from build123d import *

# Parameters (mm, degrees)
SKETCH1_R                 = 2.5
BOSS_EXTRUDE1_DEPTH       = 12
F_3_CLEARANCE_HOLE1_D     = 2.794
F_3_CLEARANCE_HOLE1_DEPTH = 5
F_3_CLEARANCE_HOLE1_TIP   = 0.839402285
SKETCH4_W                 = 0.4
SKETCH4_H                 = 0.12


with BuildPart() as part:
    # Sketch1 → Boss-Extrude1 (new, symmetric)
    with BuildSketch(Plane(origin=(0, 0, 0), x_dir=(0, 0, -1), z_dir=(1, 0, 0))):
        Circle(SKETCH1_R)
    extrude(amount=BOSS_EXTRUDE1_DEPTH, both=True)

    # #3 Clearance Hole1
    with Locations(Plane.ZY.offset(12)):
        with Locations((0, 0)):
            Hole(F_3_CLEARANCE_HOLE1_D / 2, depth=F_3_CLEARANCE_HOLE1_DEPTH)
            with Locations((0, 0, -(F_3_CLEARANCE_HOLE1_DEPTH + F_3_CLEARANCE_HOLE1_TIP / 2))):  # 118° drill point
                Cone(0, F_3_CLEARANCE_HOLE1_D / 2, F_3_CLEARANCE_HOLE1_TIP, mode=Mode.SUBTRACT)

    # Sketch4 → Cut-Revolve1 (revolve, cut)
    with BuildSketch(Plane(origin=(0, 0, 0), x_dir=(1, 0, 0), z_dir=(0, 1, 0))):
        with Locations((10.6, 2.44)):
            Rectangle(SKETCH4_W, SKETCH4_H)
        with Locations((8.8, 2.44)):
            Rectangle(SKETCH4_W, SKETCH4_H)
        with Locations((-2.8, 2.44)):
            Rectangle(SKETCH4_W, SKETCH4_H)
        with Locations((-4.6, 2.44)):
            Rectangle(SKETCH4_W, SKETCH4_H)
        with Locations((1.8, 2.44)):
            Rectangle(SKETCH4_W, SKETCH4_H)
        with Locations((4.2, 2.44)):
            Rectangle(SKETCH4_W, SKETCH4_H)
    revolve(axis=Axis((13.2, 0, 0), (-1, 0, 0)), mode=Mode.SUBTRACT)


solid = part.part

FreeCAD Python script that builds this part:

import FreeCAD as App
import Part
import Sketcher
Q = App.Units.Quantity

doc = App.newDocument("Part")
body = doc.addObject("PartDesign::Body", "Body")

sketch1 = body.newObject("Sketcher::SketchObject", "Sketch")
sketch1.AttachmentSupport = (doc.getObject("YZ_Plane"), [""])
sketch1.MapMode = "FlatFace"
sketch1.addGeometry(Part.Circle(App.Vector(0, 0, 0), App.Vector(0, 0, 1), 2.5), False)
sketch1.addConstraint([
    Sketcher.Constraint("Coincident", 0, 3, -1, 1),
    Sketcher.Constraint("Diameter", 0, Q("5 mm")),
])
pad1 = body.newObject("PartDesign::Pad", "Pad")
pad1.Profile = sketch1
pad1.Length = 24
pad1.Midplane = True

sketch2 = body.newObject("Sketcher::SketchObject", "Sketch001")
sketch2.AttachmentSupport = (doc.getObject("YZ_Plane"), [""])
sketch2.MapMode = "FlatFace"
sketch2.AttachmentOffset = App.Placement(App.Vector(0, 0, -12), App.Rotation())
sketch2.addGeometry(Part.Circle(App.Vector(0, 0, 0), App.Vector(0, 0, 1), 1.4), False)
sketch2.addConstraint([
    Sketcher.Constraint("Coincident", 0, 3, -1, 1),
    Sketcher.Constraint("Diameter", 0, Q("2.794 mm")),
])
doc.recompute()
hole = body.newObject("PartDesign::Hole", "Hole")
hole.Profile = sketch2
hole.ThreadType = "None"
hole.Diameter = 2.794
hole.DepthType = "Dimension"
hole.Depth = 5
hole.DrillPoint = "Angled"
hole.DrillPointAngle = 118
hole.Reversed = True

sketch3 = body.newObject("Sketcher::SketchObject", "Sketch002")
sketch3.AttachmentSupport = (doc.getObject("XZ_Plane"), [""])
sketch3.MapMode = "FlatFace"
sketch3.addGeometry([
    Part.LineSegment(App.Vector(10.4, -2.5, 0), App.Vector(10.4, -2.38, 0)),
    Part.LineSegment(App.Vector(10.4, -2.38, 0), App.Vector(10.8, -2.38, 0)),
    Part.LineSegment(App.Vector(10.8, -2.38, 0), App.Vector(10.8, -2.5, 0)),
    Part.LineSegment(App.Vector(10.8, -2.5, 0), App.Vector(10.4, -2.5, 0)),
    Part.LineSegment(App.Vector(8.6, -2.5, 0), App.Vector(8.6, -2.38, 0)),
    Part.LineSegment(App.Vector(8.6, -2.38, 0), App.Vector(9, -2.38, 0)),
    Part.LineSegment(App.Vector(9, -2.38, 0), App.Vector(9, -2.5, 0)),
    Part.LineSegment(App.Vector(9, -2.5, 0), App.Vector(8.6, -2.5, 0)),
    Part.LineSegment(App.Vector(-3, -2.5, 0), App.Vector(-3, -2.38, 0)),
    Part.LineSegment(App.Vector(-3, -2.38, 0), App.Vector(-2.6, -2.38, 0)),
    Part.LineSegment(App.Vector(-2.6, -2.38, 0), App.Vector(-2.6, -2.5, 0)),
    Part.LineSegment(App.Vector(-2.6, -2.5, 0), App.Vector(-3, -2.5, 0)),
    Part.LineSegment(App.Vector(-4.8, -2.5, 0), App.Vector(-4.8, -2.38, 0)),
    Part.LineSegment(App.Vector(-4.8, -2.38, 0), App.Vector(-4.4, -2.38, 0)),
    Part.LineSegment(App.Vector(-4.4, -2.38, 0), App.Vector(-4.4, -2.5, 0)),
    Part.LineSegment(App.Vector(-4.4, -2.5, 0), App.Vector(-4.8, -2.5, 0)),
    Part.LineSegment(App.Vector(1.6, -2.5, 0), App.Vector(1.6, -2.38, 0)),
    Part.LineSegment(App.Vector(1.6, -2.38, 0), App.Vector(2, -2.38, 0)),
    Part.LineSegment(App.Vector(2, -2.38, 0), App.Vector(2, -2.5, 0)),
    Part.LineSegment(App.Vector(2, -2.5, 0), App.Vector(1.6, -2.5, 0)),
    Part.LineSegment(App.Vector(4, -2.5, 0), App.Vector(4, -2.38, 0)),
    Part.LineSegment(App.Vector(4, -2.38, 0), App.Vector(4.4, -2.38, 0)),
    Part.LineSegment(App.Vector(4.4, -2.38, 0), App.Vector(4.4, -2.5, 0)),
    Part.LineSegment(App.Vector(4.4, -2.5, 0), App.Vector(4, -2.5, 0)),
], False)
sketch3.addConstraint([
    Sketcher.Constraint("Coincident", 0, 2, 1, 1),
    Sketcher.Constraint("Coincident", 1, 2, 2, 1),
    Sketcher.Constraint("Coincident", 2, 2, 3, 1),
    Sketcher.Constraint("Coincident", 3, 2, 0, 1),
    Sketcher.Constraint("Coincident", 4, 2, 5, 1),
    Sketcher.Constraint("Coincident", 5, 2, 6, 1),
    Sketcher.Constraint("Coincident", 6, 2, 7, 1),
    Sketcher.Constraint("Coincident", 7, 2, 4, 1),
    Sketcher.Constraint("Coincident", 8, 2, 9, 1),
    Sketcher.Constraint("Coincident", 9, 2, 10, 1),
    Sketcher.Constraint("Coincident", 10, 2, 11, 1),
    Sketcher.Constraint("Coincident", 11, 2, 8, 1),
    Sketcher.Constraint("Coincident", 12, 2, 13, 1),
    Sketcher.Constraint("Coincident", 13, 2, 14, 1),
    Sketcher.Constraint("Coincident", 14, 2, 15, 1),
    Sketcher.Constraint("Coincident", 15, 2, 12, 1),
    Sketcher.Constraint("Coincident", 16, 2, 17, 1),
    Sketcher.Constraint("Coincident", 17, 2, 18, 1),
    Sketcher.Constraint("Coincident", 18, 2, 19, 1),
    Sketcher.Constraint("Coincident", 19, 2, 16, 1),
    Sketcher.Constraint("Coincident", 20, 2, 21, 1),
    Sketcher.Constraint("Coincident", 21, 2, 22, 1),
    Sketcher.Constraint("Coincident", 22, 2, 23, 1),
    Sketcher.Constraint("Coincident", 23, 2, 20, 1),
    Sketcher.Constraint("Vertical", 0),
    Sketcher.Constraint("Horizontal", 1),
    Sketcher.Constraint("Vertical", 2),
    Sketcher.Constraint("Horizontal", 3),
    Sketcher.Constraint("Vertical", 4),
    Sketcher.Constraint("Horizontal", 5),
    Sketcher.Constraint("Vertical", 6),
    Sketcher.Constraint("Horizontal", 7),
    Sketcher.Constraint("Vertical", 8),
    Sketcher.Constraint("Horizontal", 9),
    Sketcher.Constraint("Vertical", 10),
    Sketcher.Constraint("Horizontal", 11),
    Sketcher.Constraint("Vertical", 12),
    Sketcher.Constraint("Horizontal", 13),
    Sketcher.Constraint("Vertical", 14),
    Sketcher.Constraint("Horizontal", 15),
    Sketcher.Constraint("Vertical", 16),
    Sketcher.Constraint("Horizontal", 17),
    Sketcher.Constraint("Vertical", 18),
    Sketcher.Constraint("Horizontal", 19),
    Sketcher.Constraint("Vertical", 20),
    Sketcher.Constraint("Horizontal", 21),
    Sketcher.Constraint("Vertical", 22),
    Sketcher.Constraint("Horizontal", 23),
    Sketcher.Constraint("Symmetric", 13, 2, 21, 2, -2),
    Sketcher.Constraint("Horizontal", 1, 2, 4, 2),
    Sketcher.Constraint("Horizontal", 3, 2, 6, 2),
    Sketcher.Constraint("Horizontal", 5, 2, 8, 2),
    Sketcher.Constraint("Horizontal", 7, 2, 10, 2),
    Sketcher.Constraint("Horizontal", 9, 2, 12, 2),
    Sketcher.Constraint("Horizontal", 11, 2, 14, 2),
    Sketcher.Constraint("Horizontal", 13, 2, 16, 2),
    Sketcher.Constraint("Horizontal", 15, 2, 18, 2),
    Sketcher.Constraint("Horizontal", 19, 2, 22, 2),
    Sketcher.Constraint("Equal", 3, 5),
    Sketcher.Constraint("Equal", 7, 9),
    Sketcher.Constraint("Equal", 11, 13),
    Sketcher.Constraint("Equal", 15, 17),
    Sketcher.Constraint("Equal", 19, 21),
    Sketcher.Constraint("DistanceX", 1, 1, 1, 2, Q("0.4 mm")),
    Sketcher.Constraint("DistanceX", -1, 1, 5, 2, Q("9 mm")),
    Sketcher.Constraint("DistanceX", 8, 2, -1, 1, Q("3 mm")),
    Sketcher.Constraint("DistanceX", -1, 1, 17, 2, Q("2 mm")),
    Sketcher.Constraint("DistanceX", -1, 1, 20, 2, Q("4 mm")),
    Sketcher.Constraint("DistanceY", 0, 1, 0, 2, Q("0.12 mm")),
    Sketcher.Constraint("DistanceX", -1, 1, 0, 2, Q("10.4 mm")),
    Sketcher.Constraint("DistanceY", 2, 2, -1, 1, Q("2.5 mm")),
])
groove = body.newObject("PartDesign::Groove", "Groove")
groove.Profile = sketch3
groove.ReferenceAxis = (sketch3, ["H_Axis"])
groove.Angle = 360

doc.recompute()
